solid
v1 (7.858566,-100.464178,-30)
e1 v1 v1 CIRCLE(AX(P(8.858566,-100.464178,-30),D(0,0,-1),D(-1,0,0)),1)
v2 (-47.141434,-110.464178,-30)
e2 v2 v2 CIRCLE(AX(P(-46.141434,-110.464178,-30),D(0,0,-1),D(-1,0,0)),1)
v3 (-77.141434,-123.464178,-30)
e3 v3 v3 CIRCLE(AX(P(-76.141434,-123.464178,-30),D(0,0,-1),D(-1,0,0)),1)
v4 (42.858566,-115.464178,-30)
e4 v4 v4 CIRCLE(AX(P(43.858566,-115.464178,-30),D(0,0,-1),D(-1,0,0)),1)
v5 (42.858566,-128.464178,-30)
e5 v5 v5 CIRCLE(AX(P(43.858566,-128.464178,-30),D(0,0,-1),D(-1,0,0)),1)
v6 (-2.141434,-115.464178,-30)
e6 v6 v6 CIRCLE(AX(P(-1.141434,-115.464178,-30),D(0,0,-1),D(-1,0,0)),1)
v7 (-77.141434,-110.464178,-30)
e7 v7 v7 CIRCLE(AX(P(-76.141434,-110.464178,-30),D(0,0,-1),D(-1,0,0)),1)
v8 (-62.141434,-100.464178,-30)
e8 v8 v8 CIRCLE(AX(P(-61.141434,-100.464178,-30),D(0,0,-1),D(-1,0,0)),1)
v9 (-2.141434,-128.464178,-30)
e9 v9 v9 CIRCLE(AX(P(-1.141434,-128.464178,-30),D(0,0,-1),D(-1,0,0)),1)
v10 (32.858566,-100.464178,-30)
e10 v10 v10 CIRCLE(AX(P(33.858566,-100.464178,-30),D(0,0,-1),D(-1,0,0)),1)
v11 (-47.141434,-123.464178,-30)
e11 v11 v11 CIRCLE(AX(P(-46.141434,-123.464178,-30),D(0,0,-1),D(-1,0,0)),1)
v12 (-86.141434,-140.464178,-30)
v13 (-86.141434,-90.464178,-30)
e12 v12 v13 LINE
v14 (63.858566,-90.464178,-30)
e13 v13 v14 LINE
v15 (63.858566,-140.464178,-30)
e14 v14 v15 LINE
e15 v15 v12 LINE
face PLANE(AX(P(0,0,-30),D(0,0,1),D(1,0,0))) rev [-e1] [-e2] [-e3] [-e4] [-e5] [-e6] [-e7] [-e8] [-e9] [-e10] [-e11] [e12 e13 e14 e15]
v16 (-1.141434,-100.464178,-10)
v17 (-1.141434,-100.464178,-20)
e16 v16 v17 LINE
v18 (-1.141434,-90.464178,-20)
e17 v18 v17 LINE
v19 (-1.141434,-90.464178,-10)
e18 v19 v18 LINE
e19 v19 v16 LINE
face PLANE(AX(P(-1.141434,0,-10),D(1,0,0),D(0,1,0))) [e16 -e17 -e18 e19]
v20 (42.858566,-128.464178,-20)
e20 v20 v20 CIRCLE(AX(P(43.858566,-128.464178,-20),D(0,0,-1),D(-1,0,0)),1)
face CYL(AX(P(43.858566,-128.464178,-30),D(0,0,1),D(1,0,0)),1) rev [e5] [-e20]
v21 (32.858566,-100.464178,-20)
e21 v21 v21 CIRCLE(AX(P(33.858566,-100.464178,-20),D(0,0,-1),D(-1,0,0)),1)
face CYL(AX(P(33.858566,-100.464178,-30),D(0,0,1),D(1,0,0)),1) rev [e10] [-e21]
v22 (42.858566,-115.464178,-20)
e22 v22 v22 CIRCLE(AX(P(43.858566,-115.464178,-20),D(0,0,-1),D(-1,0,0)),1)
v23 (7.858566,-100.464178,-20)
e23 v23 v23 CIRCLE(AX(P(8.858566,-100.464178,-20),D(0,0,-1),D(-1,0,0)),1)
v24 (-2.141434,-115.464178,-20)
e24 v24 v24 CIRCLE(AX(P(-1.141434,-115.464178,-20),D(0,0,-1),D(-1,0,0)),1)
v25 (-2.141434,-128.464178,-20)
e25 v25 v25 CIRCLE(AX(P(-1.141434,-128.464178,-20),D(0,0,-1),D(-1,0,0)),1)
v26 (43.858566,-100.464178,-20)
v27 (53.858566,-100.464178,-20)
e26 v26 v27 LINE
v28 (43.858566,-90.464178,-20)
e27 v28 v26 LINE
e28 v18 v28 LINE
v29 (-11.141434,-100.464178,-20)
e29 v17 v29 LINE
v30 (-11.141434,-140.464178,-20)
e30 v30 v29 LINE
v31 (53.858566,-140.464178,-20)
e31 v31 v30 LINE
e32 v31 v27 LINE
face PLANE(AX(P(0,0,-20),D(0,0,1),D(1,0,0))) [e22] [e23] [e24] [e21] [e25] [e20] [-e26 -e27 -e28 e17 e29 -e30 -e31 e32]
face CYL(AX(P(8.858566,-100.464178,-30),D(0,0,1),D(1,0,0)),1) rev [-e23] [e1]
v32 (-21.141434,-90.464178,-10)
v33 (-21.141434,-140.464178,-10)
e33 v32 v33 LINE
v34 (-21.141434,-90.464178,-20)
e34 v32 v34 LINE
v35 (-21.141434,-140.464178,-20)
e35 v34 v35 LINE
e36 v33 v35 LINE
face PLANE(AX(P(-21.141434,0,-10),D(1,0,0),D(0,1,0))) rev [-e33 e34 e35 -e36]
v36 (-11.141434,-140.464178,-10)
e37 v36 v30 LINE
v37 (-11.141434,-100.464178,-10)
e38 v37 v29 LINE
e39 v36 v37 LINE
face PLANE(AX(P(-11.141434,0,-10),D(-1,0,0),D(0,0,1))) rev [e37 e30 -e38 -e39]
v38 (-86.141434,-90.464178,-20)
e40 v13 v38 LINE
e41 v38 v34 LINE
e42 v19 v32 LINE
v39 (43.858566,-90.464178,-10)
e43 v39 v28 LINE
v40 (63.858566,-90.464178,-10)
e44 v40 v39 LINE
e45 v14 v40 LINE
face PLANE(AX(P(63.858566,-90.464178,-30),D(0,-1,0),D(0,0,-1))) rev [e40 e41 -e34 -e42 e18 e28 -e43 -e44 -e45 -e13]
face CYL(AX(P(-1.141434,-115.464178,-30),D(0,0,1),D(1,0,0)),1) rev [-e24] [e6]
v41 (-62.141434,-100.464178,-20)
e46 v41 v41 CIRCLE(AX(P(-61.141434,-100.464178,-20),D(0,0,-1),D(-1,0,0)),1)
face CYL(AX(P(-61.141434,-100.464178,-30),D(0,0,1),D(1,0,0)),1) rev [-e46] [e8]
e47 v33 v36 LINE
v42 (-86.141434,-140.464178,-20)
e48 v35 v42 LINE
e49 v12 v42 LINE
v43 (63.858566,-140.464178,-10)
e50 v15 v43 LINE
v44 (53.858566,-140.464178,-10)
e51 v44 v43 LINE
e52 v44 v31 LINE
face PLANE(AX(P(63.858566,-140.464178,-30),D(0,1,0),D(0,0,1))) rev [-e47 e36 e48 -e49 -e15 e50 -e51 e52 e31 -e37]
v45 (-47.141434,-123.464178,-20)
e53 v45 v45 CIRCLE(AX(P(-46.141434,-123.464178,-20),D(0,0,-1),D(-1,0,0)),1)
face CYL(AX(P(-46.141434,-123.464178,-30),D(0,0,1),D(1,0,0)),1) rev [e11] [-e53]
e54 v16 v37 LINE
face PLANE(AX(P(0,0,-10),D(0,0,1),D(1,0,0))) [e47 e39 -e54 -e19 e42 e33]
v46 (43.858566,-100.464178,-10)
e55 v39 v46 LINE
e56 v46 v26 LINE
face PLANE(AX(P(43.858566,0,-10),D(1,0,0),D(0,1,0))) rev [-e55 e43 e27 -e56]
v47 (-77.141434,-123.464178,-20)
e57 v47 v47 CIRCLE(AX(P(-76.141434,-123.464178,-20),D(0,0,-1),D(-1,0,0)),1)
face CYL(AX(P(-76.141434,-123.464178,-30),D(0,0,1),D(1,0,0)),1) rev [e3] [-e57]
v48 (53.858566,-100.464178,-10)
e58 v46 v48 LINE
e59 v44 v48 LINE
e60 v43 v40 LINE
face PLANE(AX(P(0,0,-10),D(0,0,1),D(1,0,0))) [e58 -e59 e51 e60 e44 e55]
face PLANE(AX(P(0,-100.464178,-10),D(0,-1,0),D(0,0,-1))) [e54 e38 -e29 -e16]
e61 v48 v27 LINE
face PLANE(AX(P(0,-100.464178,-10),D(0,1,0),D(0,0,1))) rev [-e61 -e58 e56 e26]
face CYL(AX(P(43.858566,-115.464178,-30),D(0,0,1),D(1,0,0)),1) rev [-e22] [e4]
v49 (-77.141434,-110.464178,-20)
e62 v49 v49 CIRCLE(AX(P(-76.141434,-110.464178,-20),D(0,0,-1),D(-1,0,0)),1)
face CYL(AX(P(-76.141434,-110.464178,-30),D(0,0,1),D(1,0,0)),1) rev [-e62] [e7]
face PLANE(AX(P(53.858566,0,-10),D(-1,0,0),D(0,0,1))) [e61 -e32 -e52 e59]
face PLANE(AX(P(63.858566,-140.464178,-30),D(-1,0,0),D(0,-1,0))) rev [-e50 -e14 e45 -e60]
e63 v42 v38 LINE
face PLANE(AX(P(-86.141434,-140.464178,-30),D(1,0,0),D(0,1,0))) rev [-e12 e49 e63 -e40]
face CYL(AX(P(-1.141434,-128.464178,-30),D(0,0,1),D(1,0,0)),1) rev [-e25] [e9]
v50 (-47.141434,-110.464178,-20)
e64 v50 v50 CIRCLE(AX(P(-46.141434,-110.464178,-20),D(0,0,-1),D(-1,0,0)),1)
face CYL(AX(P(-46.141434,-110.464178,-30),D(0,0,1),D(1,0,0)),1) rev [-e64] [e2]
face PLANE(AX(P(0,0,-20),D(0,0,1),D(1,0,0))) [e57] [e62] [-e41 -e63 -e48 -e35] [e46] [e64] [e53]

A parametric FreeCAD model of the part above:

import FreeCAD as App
import Part
import Sketcher
Q = App.Units.Quantity


def add_polygon(sketch, points):
    """Adds a closed chain of lines whose ends are joined by coincident constraints."""
    first, n = sketch.GeometryCount, len(points)
    for a, b in zip(points, points[1:] + points[:1]):
        sketch.addGeometry(Part.LineSegment(App.Vector(*a, 0), App.Vector(*b, 0)), False)
    for i in range(n):
        sketch.addConstraint(Sketcher.Constraint("Coincident", first + i, 2, first + (i + 1) % n, 1))

doc = App.newDocument("Part")
body = doc.addObject("PartDesign::Body", "Body")

sketch1 = body.newObject("Sketcher::SketchObject", "Sketch")
sketch1.AttachmentSupport = (doc.getObject("XY_Plane"), [""])
sketch1.MapMode = "FlatFace"
sketch1.AttachmentOffset = App.Placement(App.Vector(0, 0, -20), App.Rotation())
add_polygon(sketch1, [(63.9, -90.5), (63.9, -140.5), (-86.1, -140.5), (-86.1, -90.5)])
sketch1.addGeometry(Part.Circle(App.Vector(43.9, -128.5, 0), App.Vector(0, 0, 1), 1), False)
sketch1.addGeometry(Part.Circle(App.Vector(-1.1, -128.5, 0), App.Vector(0, 0, 1), 1), False)
sketch1.addGeometry(Part.Circle(App.Vector(43.9, -115.5, 0), App.Vector(0, 0, 1), 1), False)
sketch1.addGeometry(Part.Circle(App.Vector(-1.1, -115.5, 0), App.Vector(0, 0, 1), 1), False)
sketch1.addGeometry(Part.Circle(App.Vector(-46.1, -123.5, 0), App.Vector(0, 0, 1), 1), False)
sketch1.addGeometry(Part.Circle(App.Vector(-76.1, -123.5, 0), App.Vector(0, 0, 1), 1), False)
sketch1.addGeometry(Part.Circle(App.Vector(33.9, -100.5, 0), App.Vector(0, 0, 1), 1), False)
sketch1.addGeometry(Part.Circle(App.Vector(8.9, -100.5, 0), App.Vector(0, 0, 1), 1), False)
sketch1.addGeometry(Part.Circle(App.Vector(-46.1, -110.5, 0), App.Vector(0, 0, 1), 1), False)
sketch1.addGeometry(Part.Circle(App.Vector(-76.1, -110.5, 0), App.Vector(0, 0, 1), 1), False)
sketch1.addGeometry(Part.Circle(App.Vector(-61.1, -100.5, 0), App.Vector(0, 0, 1), 1), False)
sketch1.addConstraint(Sketcher.Constraint("Vertical", 0))
sketch1.addConstraint(Sketcher.Constraint("Horizontal", 1))
sketch1.addConstraint(Sketcher.Constraint("Vertical", 2))
sketch1.addConstraint(Sketcher.Constraint("Horizontal", 3))
sketch1.addConstraint(Sketcher.Constraint("Equal", 4, 5))
sketch1.addConstraint(Sketcher.Constraint("Equal", 5, 6))
sketch1.addConstraint(Sketcher.Constraint("Equal", 6, 7))
sketch1.addConstraint(Sketcher.Constraint("Equal", 7, 8))
sketch1.addConstraint(Sketcher.Constraint("Equal", 8, 9))
sketch1.addConstraint(Sketcher.Constraint("Equal", 9, 10))
sketch1.addConstraint(Sketcher.Constraint("Equal", 10, 11))
sketch1.addConstraint(Sketcher.Constraint("Equal", 11, 12))
sketch1.addConstraint(Sketcher.Constraint("Equal", 12, 13))
sketch1.addConstraint(Sketcher.Constraint("Equal", 13, 14))
sketch1.addConstraint(Sketcher.Constraint("Horizontal", 4, 3, 5, 3))
sketch1.addConstraint(Sketcher.Constraint("Horizontal", 6, 3, 7, 3))
sketch1.addConstraint(Sketcher.Constraint("Horizontal", 8, 3, 9, 3))
sketch1.addConstraint(Sketcher.Constraint("Horizontal", 10, 3, 11, 3))
sketch1.addConstraint(Sketcher.Constraint("Horizontal", 12, 3, 13, 3))
sketch1.addConstraint(Sketcher.Constraint("Horizontal", 11, 3, 14, 3))
sketch1.addConstraint(Sketcher.Constraint("Vertical", 4, 3, 6, 3))
sketch1.addConstraint(Sketcher.Constraint("Vertical", 5, 3, 7, 3))
sketch1.addConstraint(Sketcher.Constraint("Vertical", 8, 3, 12, 3))
sketch1.addConstraint(Sketcher.Constraint("Vertical", 9, 3, 13, 3))
sketch1.addConstraint(Sketcher.Constraint("Diameter", 4, Q("2 mm")))
sketch1.addConstraint(Sketcher.Constraint("DistanceX", 1, 2, 1, 1, Q("150 mm")))
sketch1.addConstraint(Sketcher.Constraint("DistanceY", 0, 2, 0, 1, Q("50 mm")))
sketch1.addConstraint(Sketcher.Constraint("DistanceX", 5, 3, 4, 3, Q("45 mm")))
sketch1.addConstraint(Sketcher.Constraint("DistanceY", 4, 3, 6, 3, Q("13 mm")))
sketch1.addConstraint(Sketcher.Constraint("DistanceX", 8, 3, 5, 3, Q("45 mm")))
sketch1.addConstraint(Sketcher.Constraint("DistanceY", 5, 3, 8, 3, Q("5 mm")))
sketch1.addConstraint(Sketcher.Constraint("DistanceX", 9, 3, 8, 3, Q("30 mm")))
sketch1.addConstraint(Sketcher.Constraint("DistanceX", 10, 3, 6, 3, Q("10 mm")))
sketch1.addConstraint(Sketcher.Constraint("DistanceY", 6, 3, 10, 3, Q("15 mm")))
sketch1.addConstraint(Sketcher.Constraint("DistanceX", 7, 3, 11, 3, Q("10 mm")))
sketch1.addConstraint(Sketcher.Constraint("DistanceY", 8, 3, 12, 3, Q("13 mm")))
sketch1.addConstraint(Sketcher.Constraint("DistanceX", 13, 3, 14, 3, Q("15 mm")))
sketch1.addConstraint(Sketcher.Constraint("DistanceX", 4, 3, 0, 2, Q("20 mm")))
sketch1.addConstraint(Sketcher.Constraint("DistanceY", 0, 2, 4, 3, Q("12 mm")))
sketch1.addConstraint(Sketcher.Constraint("DistanceY", 4, 3, -1, 1, Q("128.464178 mm")))
sketch1.addConstraint(Sketcher.Constraint("DistanceX", -1, 1, 4, 3, Q("43.858566 mm")))
pad1 = body.newObject("PartDesign::Pad", "Pad")
pad1.Profile = sketch1
pad1.Length = 10
pad1.Reversed = True

sketch2 = body.newObject("Sketcher::SketchObject", "Sketch001")
sketch2.AttachmentSupport = (doc.getObject("XY_Plane"), [""])
sketch2.MapMode = "FlatFace"
sketch2.AttachmentOffset = App.Placement(App.Vector(0, 0, -20), App.Rotation())
add_polygon(sketch2, [(-1, -100), (-1, -90), (-21, -90), (-21, -140), (-11, -140), (-11, -100)])
add_polygon(sketch2, [(64, -140), (64, -90), (44, -90), (44, -100), (54, -100), (54, -140)])
sketch2.addConstraint(Sketcher.Constraint("Vertical", 0))
sketch2.addConstraint(Sketcher.Constraint("Horizontal", 1))
sketch2.addConstraint(Sketcher.Constraint("Vertical", 2))
sketch2.addConstraint(Sketcher.Constraint("Horizontal", 3))
sketch2.addConstraint(Sketcher.Constraint("Vertical", 4))
sketch2.addConstraint(Sketcher.Constraint("Horizontal", 5))
sketch2.addConstraint(Sketcher.Constraint("Vertical", 6))
sketch2.addConstraint(Sketcher.Constraint("Horizontal", 7))
sketch2.addConstraint(Sketcher.Constraint("Vertical", 8))
sketch2.addConstraint(Sketcher.Constraint("Horizontal", 9))
sketch2.addConstraint(Sketcher.Constraint("Vertical", 10))
sketch2.addConstraint(Sketcher.Constraint("Horizontal", 11))
sketch2.addConstraint(Sketcher.Constraint("Horizontal", 1, 2, 6, 2))
sketch2.addConstraint(Sketcher.Constraint("Horizontal", 5, 2, 8, 2))
sketch2.addConstraint(Sketcher.Constraint("Horizontal", 3, 2, 10, 2))
sketch2.addConstraint(Sketcher.Constraint("Equal", 3, 5))
sketch2.addConstraint(Sketcher.Constraint("Equal", 1, 7))
sketch2.addConstraint(Sketcher.Constraint("Equal", 5, 9))
sketch2.addConstraint(Sketcher.Constraint("Equal", 11, 0))
sketch2.addConstraint(Sketcher.Constraint("DistanceX", 1, 2, 1, 1, Q("20 mm")))
sketch2.addConstraint(Sketcher.Constraint("DistanceY", 2, 2, 2, 1, Q("50 mm")))
sketch2.addConstraint(Sketcher.Constraint("DistanceX", 0, 2, 6, 2, Q("65 mm")))
sketch2.addConstraint(Sketcher.Constraint("DistanceY", 0, 2, -1, 1, Q("90.464178 mm")))
sketch2.addConstraint(Sketcher.Constraint("DistanceX", 0, 2, -1, 1, Q("1.141434 mm")))
pad2 = body.newObject("PartDesign::Pad", "Pad001")
pad2.Profile = sketch2
pad2.Length = 10

doc.recompute()
